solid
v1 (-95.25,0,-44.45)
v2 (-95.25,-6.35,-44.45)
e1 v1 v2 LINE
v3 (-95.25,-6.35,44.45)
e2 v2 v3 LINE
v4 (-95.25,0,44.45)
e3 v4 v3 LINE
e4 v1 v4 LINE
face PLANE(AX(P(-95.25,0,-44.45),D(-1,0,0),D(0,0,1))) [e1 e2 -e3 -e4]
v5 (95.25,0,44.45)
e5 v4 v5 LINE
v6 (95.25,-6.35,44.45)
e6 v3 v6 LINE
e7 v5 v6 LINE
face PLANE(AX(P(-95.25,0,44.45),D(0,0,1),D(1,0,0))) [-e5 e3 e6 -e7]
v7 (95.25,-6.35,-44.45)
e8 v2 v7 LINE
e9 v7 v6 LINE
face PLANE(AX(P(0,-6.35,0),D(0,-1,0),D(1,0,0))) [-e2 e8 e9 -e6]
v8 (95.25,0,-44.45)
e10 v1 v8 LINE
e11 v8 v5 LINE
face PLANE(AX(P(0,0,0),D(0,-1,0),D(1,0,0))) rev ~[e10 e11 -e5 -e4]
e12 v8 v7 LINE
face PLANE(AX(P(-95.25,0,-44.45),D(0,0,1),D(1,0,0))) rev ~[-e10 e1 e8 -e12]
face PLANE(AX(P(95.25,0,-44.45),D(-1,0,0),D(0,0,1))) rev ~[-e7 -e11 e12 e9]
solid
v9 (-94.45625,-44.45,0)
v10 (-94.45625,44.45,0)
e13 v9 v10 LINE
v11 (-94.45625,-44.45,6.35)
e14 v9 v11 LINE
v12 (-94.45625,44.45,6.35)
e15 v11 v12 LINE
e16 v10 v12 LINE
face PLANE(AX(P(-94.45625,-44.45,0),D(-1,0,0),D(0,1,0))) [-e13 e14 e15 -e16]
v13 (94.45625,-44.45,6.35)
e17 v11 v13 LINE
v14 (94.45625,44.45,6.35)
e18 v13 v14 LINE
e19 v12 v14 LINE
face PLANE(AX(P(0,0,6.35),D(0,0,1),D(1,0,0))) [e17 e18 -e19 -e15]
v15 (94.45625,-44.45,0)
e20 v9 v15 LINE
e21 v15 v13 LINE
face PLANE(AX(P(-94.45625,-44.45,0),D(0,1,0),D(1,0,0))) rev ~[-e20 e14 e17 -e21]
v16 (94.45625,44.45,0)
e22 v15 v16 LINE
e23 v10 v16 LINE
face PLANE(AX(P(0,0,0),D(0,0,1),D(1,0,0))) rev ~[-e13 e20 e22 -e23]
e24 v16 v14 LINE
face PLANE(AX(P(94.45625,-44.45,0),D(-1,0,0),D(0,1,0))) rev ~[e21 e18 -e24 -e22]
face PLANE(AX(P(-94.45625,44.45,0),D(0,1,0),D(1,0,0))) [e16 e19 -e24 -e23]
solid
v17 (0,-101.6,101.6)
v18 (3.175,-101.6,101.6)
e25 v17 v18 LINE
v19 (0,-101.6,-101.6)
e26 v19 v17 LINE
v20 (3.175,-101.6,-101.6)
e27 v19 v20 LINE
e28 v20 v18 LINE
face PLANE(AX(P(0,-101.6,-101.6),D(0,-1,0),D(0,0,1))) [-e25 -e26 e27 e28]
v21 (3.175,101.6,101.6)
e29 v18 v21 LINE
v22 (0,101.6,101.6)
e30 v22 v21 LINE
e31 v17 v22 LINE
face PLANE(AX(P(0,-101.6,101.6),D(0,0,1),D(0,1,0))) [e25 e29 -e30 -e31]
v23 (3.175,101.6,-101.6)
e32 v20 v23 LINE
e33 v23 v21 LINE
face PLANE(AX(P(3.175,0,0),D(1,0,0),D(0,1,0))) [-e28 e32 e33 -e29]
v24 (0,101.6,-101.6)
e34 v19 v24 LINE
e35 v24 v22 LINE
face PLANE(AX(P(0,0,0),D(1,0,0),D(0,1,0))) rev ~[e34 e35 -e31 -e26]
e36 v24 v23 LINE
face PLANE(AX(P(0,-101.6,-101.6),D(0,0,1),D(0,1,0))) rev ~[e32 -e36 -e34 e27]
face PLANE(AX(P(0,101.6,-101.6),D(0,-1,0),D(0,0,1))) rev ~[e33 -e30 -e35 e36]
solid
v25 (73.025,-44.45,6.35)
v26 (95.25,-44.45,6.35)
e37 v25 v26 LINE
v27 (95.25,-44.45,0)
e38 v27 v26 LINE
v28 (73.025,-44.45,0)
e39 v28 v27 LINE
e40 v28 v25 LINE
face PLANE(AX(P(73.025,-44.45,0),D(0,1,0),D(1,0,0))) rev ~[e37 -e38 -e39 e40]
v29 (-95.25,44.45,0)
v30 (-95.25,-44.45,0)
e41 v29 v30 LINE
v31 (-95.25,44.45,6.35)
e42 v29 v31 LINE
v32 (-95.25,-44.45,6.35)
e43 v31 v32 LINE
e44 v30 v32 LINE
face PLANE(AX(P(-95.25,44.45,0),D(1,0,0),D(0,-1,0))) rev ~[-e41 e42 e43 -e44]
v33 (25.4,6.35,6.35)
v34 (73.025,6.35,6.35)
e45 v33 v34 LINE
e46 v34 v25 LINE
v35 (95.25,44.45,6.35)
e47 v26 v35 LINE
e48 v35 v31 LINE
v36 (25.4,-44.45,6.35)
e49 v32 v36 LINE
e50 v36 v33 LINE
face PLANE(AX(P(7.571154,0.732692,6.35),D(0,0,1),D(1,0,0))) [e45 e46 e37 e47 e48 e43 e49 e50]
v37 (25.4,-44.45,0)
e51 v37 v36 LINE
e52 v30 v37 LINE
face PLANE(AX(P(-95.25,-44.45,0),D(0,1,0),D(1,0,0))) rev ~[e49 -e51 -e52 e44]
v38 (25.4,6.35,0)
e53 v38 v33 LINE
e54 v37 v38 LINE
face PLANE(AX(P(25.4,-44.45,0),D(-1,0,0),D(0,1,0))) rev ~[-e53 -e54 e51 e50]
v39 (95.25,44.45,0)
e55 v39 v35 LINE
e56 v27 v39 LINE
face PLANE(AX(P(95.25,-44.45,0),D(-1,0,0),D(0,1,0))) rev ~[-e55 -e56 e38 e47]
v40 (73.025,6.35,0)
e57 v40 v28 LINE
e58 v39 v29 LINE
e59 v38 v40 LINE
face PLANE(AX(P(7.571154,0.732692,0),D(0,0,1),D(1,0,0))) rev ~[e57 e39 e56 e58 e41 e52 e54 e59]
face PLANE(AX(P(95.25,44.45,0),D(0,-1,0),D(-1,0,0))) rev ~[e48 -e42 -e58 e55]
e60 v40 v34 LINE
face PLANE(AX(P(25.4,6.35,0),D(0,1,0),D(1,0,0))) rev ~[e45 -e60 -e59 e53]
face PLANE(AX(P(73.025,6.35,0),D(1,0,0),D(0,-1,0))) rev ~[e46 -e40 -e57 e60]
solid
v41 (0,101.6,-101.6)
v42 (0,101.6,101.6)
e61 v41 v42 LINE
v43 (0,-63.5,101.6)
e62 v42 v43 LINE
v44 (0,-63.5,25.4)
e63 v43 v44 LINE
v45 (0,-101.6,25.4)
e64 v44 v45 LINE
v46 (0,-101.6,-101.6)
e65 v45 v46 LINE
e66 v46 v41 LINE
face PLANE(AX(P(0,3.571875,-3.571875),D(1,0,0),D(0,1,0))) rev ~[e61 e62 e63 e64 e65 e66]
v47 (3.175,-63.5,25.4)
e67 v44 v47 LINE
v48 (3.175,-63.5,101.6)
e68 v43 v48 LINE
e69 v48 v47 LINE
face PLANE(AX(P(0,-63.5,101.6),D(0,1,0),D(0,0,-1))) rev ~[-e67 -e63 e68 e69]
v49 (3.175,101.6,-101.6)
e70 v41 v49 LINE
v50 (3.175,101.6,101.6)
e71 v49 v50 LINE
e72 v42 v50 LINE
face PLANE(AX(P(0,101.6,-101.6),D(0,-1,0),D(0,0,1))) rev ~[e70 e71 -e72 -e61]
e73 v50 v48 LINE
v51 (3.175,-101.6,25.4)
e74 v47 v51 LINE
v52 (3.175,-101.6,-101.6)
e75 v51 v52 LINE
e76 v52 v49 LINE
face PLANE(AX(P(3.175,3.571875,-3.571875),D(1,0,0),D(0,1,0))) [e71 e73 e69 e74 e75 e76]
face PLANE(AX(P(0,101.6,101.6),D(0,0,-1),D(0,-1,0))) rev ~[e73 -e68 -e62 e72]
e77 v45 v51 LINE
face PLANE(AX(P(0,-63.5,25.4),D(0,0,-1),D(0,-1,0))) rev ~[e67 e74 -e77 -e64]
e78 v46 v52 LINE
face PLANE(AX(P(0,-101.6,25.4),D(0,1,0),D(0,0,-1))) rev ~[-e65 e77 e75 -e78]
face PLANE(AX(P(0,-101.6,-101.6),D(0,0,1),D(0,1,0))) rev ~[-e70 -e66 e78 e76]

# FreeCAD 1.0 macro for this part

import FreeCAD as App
import Part
import Sketcher
from FreeCAD import Vector
Q = App.Units.Quantity


def add_polygon(sketch, points):
    """Adds a closed chain of lines whose ends are joined by coincident constraints."""
    first, n = sketch.GeometryCount, len(points)
    for a, b in zip(points, points[1:] + points[:1]):
        sketch.addGeometry(Part.LineSegment(App.Vector(*a, 0), App.Vector(*b, 0)), False)
    for i in range(n):
        sketch.addConstraint(Sketcher.Constraint("Coincident", first + i, 2, first + (i + 1) % n, 1))

doc = App.newDocument("Part")
body = doc.addObject("PartDesign::Body", "Body")

sketch1 = body.newObject("Sketcher::SketchObject", "Sketch")
sketch1.AttachmentSupport = (doc.getObject("XZ_Plane"), [""])
sketch1.MapMode = "FlatFace"
add_polygon(sketch1, [(-95.25, 44.45), (-95.25, -44.45), (95.25, -44.45), (95.25, 44.45)])
sketch1.addConstraint([
    Sketcher.Constraint("Vertical", 0),
    Sketcher.Constraint("Horizontal", 1),
    Sketcher.Constraint("Vertical", 2),
    Sketcher.Constraint("Horizontal", 3),
    Sketcher.Constraint("Symmetric", 0, 2, 2, 2, -1, 1),
    Sketcher.Constraint("DistanceX", 1, 1, 1, 2, Q("7.5 in")),
    Sketcher.Constraint("DistanceY", 0, 2, 0, 1, Q("3.5 in")),
])
pad1 = body.newObject("PartDesign::Pad", "Pad")
pad1.Profile = sketch1
pad1.Length = Q("0.25 in")
body2 = doc.addObject("PartDesign::Body", "Body001")

sketch2 = body2.newObject("Sketcher::SketchObject", "Sketch001")
sketch2.AttachmentSupport = (doc.getObject("XY_Plane001"), [""])
sketch2.MapMode = "FlatFace"
add_polygon(sketch2, [(95.25, -44.45), (95.25, 44.45), (-95.25, 44.45), (-95.25, -44.45), (25.4, -44.45), (25.4, 6.35), (73.025, 6.35), (73.025, -44.45)])
sketch2.addConstraint([
    Sketcher.Constraint("Vertical", 0),
    Sketcher.Constraint("Horizontal", 1),
    Sketcher.Constraint("Vertical", 2),
    Sketcher.Constraint("Horizontal", 3),
    Sketcher.Constraint("Vertical", 4),
    Sketcher.Constraint("Horizontal", 5),
    Sketcher.Constraint("Vertical", 6),
    Sketcher.Constraint("Horizontal", 7),
    Sketcher.Constraint("Symmetric", 0, 2, 2, 2, -1, 1),
    Sketcher.Constraint("Horizontal", 3, 2, 6, 2),
    Sketcher.Constraint("DistanceY", 4, 1, 4, 2, Q("2 in")),
    Sketcher.Constraint("DistanceX", 1, 2, 1, 1, Q("7.5 in")),
    Sketcher.Constraint("DistanceY", 0, 1, 0, 2, Q("3.5 in")),
    Sketcher.Constraint("DistanceX", -1, 1, 3, 2, Q("1 in")),
    Sketcher.Constraint("DistanceX", 5, 1, 5, 2, Q("1.875 in")),
])
pad2 = body2.newObject("PartDesign::Pad", "Pad001")
pad2.Profile = sketch2
pad2.Length = Q("0.25 in")
body3 = doc.addObject("PartDesign::Body", "Body002")

sketch3 = body3.newObject("Sketcher::SketchObject", "Sketch002")
sketch3.AttachmentSupport = (doc.getObject("XY_Plane002"), [""])
sketch3.MapMode = "FlatFace"
add_polygon(sketch3, [(-94.45625, 44.45), (-94.45625, -44.45), (94.45625, -44.45), (94.45625, 44.45)])
sketch3.addConstraint([
    Sketcher.Constraint("Vertical", 0),
    Sketcher.Constraint("Horizontal", 1),
    Sketcher.Constraint("Vertical", 2),
    Sketcher.Constraint("Horizontal", 3),
    Sketcher.Constraint("Symmetric", 0, 2, 2, 2, -1, 1),
    Sketcher.Constraint("DistanceY", 0, 2, 0, 1, Q("3.5 in")),
    Sketcher.Constraint("DistanceX", 1, 1, 1, 2, Q("7.4375 in")),
])
pad3 = body3.newObject("PartDesign::Pad", "Pad002")
pad3.Profile = sketch3
pad3.Length = Q("0.25 in")
body4 = doc.addObject("PartDesign::Body", "Body003")

sketch4 = body4.newObject("Sketcher::SketchObject", "Sketch003")
sketch4.AttachmentSupport = (doc.getObject("YZ_Plane003"), [""])
sketch4.MapMode = "FlatFace"
add_polygon(sketch4, [(-101.6, 101.6), (-101.6, -101.6), (101.6, -101.6), (101.6, 101.6)])
sketch4.addConstraint([
    Sketcher.Constraint("Vertical", 0),
    Sketcher.Constraint("Horizontal", 1),
    Sketcher.Constraint("Vertical", 2),
    Sketcher.Constraint("Horizontal", 3),
    Sketcher.Constraint("Symmetric", 0, 2, 2, 2, -1, 1),
    Sketcher.Constraint("Equal", 3, 0),
    Sketcher.Constraint("DistanceX", 1, 1, 1, 2, Q("8 in")),
])
pad4 = body4.newObject("PartDesign::Pad", "Pad003")
pad4.Profile = sketch4
pad4.Length = Q("0.125 in")
body5 = doc.addObject("PartDesign::Body", "Body004")

sketch5 = body5.newObject("Sketcher::SketchObject", "Sketch004")
sketch5.AttachmentSupport = (doc.getObject("YZ_Plane004"), [""])
sketch5.MapMode = "FlatFace"
add_polygon(sketch5, [(-101.6, 25.4), (-101.6, -101.6), (101.6, -101.6), (101.6, 101.6), (-63.5, 101.6), (-63.5, 25.4)])
sketch5.addConstraint([
    Sketcher.Constraint("Vertical", 0),
    Sketcher.Constraint("Horizontal", 1),
    Sketcher.Constraint("Vertical", 2),
    Sketcher.Constraint("Horizontal", 3),
    Sketcher.Constraint("Vertical", 4),
    Sketcher.Constraint("Horizontal", 5),
    Sketcher.Constraint("Symmetric", 0, 2, 2, 2, -1, 1),
    Sketcher.Constraint("Equal", 1, 2),
    Sketcher.Constraint("DistanceX", 1, 1, 1, 2, Q("8 in")),
    Sketcher.Constraint("DistanceY", 0, 2, 0, 1, Q("5 in")),
    Sketcher.Constraint("DistanceX", 3, 2, 3, 1, Q("6.5 in")),
])
pad5 = body5.newObject("PartDesign::Pad", "Pad004")
pad5.Profile = sketch5
pad5.Length = Q("0.125 in")

doc.recompute()
